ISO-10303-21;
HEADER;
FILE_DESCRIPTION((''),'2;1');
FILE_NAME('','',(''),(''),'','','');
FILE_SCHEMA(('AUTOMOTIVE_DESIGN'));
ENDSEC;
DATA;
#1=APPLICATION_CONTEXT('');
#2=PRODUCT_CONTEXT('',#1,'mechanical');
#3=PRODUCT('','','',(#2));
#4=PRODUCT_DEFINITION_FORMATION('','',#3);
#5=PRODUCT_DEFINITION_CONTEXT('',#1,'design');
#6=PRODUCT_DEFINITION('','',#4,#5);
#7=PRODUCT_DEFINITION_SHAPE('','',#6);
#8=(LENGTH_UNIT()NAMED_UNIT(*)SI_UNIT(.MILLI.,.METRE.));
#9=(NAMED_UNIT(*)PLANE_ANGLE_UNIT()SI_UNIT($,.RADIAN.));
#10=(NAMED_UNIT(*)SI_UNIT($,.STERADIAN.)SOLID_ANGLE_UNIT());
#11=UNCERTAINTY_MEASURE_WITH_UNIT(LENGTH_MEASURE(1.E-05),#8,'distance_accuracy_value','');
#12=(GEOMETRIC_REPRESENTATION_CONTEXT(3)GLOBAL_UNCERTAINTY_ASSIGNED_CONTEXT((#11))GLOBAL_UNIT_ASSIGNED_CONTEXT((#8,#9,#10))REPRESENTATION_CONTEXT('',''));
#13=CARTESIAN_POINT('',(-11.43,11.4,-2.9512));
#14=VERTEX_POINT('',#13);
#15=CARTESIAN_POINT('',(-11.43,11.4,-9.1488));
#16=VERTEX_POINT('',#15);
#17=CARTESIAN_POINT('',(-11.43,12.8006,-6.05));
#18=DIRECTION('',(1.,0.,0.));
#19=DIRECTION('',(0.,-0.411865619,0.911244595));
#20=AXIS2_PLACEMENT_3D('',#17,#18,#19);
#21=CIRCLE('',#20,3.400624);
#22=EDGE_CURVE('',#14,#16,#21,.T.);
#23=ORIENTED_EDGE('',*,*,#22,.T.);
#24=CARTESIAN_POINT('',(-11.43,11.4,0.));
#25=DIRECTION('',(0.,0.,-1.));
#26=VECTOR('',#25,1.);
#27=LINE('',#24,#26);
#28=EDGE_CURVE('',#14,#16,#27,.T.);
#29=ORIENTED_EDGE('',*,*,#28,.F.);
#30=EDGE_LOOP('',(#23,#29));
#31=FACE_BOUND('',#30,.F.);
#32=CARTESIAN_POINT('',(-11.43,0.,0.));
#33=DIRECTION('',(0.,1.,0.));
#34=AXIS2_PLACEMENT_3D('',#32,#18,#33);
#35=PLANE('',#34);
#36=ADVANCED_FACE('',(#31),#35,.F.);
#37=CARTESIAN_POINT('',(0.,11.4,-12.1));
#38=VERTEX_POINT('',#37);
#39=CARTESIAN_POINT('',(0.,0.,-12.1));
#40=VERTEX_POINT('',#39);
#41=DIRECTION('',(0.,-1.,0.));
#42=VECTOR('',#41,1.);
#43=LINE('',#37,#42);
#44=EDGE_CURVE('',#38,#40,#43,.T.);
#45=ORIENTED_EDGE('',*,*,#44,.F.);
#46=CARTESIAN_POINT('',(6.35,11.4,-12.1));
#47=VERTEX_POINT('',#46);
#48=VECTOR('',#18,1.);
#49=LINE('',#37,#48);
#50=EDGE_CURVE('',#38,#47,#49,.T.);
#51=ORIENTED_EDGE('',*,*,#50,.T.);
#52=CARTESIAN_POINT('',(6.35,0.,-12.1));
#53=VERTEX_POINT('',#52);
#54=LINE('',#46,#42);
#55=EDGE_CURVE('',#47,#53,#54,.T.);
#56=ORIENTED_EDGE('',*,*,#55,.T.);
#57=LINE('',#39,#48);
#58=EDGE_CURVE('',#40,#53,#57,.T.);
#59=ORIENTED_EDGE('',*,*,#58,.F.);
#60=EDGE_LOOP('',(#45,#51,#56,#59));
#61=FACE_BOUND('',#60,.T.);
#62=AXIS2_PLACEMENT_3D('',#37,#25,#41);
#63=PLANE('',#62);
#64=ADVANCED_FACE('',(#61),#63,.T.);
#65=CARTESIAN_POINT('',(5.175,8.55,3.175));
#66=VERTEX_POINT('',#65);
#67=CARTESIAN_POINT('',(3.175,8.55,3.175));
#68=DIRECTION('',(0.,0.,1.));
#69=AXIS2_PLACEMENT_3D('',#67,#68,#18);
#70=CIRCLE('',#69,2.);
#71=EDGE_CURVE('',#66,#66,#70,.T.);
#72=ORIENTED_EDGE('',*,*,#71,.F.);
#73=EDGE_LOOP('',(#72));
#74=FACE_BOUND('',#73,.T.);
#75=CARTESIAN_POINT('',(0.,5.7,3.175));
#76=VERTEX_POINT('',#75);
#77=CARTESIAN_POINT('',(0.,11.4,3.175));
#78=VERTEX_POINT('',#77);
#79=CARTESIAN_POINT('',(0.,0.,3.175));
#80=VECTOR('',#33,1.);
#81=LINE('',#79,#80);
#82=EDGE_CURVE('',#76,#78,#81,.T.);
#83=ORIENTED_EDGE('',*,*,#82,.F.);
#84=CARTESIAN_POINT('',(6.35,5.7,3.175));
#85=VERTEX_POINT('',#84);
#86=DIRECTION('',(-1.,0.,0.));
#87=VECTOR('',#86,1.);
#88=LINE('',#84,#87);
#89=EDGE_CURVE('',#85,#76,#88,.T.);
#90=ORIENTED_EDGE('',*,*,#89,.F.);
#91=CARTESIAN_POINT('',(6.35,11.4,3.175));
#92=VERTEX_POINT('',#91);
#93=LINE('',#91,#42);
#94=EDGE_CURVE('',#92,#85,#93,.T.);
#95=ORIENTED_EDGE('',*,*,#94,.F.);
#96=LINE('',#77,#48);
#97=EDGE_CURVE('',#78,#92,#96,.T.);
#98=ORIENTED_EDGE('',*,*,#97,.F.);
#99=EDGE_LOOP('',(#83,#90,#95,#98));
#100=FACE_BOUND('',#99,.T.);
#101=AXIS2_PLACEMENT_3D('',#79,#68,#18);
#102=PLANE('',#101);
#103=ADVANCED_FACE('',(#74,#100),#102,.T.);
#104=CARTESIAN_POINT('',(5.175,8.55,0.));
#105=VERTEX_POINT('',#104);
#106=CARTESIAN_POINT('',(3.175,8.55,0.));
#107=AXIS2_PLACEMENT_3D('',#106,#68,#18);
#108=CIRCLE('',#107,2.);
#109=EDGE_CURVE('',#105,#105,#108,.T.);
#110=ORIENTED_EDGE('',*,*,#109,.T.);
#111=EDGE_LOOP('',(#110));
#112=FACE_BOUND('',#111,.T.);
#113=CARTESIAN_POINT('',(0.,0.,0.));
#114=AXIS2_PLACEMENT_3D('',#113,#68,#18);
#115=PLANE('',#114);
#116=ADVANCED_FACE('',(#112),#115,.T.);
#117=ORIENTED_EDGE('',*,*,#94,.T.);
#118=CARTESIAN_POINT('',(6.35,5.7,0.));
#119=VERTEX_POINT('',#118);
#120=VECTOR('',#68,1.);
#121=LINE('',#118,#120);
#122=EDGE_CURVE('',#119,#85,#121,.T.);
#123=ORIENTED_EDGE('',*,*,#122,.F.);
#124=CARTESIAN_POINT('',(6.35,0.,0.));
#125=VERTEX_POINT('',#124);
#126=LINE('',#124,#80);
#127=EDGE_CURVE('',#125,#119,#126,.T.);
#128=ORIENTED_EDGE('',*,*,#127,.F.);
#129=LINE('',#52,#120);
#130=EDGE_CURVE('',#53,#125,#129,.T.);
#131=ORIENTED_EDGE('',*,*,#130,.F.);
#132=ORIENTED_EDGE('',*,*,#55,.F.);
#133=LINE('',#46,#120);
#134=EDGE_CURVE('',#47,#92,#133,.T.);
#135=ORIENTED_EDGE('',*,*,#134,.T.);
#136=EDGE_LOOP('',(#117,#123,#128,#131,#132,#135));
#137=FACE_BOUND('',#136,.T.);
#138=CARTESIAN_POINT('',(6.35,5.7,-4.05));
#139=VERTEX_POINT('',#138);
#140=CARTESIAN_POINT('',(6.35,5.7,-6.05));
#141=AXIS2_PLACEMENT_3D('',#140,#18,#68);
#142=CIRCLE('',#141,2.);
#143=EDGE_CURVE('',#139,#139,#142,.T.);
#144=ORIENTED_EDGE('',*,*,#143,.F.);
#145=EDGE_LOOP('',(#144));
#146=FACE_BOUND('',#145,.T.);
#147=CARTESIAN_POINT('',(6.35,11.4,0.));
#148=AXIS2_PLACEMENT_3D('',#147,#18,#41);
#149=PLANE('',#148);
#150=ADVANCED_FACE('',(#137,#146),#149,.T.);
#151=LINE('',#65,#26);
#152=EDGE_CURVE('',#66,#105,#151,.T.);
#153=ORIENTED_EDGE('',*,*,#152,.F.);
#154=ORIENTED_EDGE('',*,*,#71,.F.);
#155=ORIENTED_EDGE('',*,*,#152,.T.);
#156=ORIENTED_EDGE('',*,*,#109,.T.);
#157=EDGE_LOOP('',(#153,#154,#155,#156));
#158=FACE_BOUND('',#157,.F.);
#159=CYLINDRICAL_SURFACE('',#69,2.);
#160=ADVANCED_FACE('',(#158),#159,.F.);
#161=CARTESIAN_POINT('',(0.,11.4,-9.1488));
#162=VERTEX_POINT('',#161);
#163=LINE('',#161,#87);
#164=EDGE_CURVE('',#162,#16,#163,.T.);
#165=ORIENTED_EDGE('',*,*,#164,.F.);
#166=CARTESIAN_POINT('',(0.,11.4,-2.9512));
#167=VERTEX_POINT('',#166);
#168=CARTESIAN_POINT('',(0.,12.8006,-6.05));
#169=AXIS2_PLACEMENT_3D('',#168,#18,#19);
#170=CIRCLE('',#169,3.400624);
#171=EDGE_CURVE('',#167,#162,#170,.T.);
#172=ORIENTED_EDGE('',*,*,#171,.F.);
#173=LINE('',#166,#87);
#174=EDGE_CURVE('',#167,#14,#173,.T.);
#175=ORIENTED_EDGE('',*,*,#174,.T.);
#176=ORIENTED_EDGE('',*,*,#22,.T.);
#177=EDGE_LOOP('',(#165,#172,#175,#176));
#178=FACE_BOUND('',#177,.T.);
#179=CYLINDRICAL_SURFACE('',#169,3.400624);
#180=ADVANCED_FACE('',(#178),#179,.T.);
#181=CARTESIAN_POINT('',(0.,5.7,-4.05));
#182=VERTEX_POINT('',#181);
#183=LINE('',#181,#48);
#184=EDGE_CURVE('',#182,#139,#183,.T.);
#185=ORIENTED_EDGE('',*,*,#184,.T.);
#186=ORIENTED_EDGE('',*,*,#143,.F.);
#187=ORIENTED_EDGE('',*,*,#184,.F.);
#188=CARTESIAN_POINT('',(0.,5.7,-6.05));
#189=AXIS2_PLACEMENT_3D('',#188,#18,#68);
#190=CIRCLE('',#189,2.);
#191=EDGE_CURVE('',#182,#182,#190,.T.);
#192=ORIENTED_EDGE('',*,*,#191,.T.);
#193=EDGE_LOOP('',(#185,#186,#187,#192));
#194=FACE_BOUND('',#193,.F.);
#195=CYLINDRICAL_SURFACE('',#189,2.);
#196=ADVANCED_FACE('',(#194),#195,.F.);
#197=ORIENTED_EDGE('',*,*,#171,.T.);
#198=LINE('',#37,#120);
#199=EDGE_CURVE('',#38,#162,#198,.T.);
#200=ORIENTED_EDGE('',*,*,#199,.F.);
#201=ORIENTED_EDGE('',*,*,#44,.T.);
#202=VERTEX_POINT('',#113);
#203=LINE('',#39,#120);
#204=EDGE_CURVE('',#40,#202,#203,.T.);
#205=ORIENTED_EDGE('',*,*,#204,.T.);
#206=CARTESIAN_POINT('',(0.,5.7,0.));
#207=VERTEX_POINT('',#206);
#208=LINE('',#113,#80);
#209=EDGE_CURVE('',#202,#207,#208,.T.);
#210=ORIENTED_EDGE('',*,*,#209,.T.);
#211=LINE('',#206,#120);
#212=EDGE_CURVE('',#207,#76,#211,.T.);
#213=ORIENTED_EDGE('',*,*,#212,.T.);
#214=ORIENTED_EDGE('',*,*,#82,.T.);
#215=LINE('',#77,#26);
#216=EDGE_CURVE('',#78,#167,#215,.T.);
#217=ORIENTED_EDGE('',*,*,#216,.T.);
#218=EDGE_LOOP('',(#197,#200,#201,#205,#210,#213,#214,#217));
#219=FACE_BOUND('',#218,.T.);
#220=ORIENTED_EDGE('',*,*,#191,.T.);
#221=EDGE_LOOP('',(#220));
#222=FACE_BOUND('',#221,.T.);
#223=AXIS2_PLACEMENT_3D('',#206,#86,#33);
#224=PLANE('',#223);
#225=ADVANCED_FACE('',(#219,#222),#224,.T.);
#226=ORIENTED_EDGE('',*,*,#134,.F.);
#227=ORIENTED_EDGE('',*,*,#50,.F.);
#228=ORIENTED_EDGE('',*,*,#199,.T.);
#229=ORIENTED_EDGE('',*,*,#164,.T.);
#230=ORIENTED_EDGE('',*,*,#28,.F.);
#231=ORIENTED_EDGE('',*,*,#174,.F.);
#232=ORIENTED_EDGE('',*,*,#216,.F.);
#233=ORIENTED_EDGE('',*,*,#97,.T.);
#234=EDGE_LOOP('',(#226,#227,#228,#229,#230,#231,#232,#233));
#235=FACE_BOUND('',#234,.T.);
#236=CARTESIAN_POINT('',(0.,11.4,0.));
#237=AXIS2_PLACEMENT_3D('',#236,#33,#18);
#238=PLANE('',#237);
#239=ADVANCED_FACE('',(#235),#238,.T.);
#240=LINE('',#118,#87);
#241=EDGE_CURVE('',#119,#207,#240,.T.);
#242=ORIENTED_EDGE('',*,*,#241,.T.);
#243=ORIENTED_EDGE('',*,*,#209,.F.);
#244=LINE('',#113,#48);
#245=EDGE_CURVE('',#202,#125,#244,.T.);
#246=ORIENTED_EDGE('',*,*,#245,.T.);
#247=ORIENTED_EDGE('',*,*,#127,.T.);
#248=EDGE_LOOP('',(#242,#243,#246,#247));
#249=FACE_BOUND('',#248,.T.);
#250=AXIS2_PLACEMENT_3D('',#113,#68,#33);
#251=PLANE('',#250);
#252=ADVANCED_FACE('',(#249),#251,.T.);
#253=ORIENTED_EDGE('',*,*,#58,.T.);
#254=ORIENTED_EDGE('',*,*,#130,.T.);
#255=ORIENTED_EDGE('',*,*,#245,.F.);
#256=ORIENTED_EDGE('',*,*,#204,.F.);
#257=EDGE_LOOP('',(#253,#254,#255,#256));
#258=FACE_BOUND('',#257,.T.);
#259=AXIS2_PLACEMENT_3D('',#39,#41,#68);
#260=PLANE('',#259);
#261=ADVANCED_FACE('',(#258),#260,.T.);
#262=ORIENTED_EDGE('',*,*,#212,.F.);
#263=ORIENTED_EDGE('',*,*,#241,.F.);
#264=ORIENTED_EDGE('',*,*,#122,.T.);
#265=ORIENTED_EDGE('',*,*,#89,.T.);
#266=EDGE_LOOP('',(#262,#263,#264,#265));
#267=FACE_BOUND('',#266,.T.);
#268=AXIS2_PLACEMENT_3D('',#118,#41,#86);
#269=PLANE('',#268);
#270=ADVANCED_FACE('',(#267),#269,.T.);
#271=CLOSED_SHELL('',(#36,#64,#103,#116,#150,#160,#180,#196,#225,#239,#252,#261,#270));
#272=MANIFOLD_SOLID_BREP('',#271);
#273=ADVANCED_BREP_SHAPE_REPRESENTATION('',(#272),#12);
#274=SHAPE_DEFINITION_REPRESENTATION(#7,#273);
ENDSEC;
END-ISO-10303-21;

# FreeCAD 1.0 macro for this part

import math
import FreeCAD as App
import Part
import Sketcher

V = App.Vector
Q = App.Units.Quantity


def add_polygon(sketch, points):
    """Adds a closed chain of lines whose ends are joined by coincident constraints."""
    first, n = sketch.GeometryCount, len(points)
    for a, b in zip(points, points[1:] + points[:1]):
        sketch.addGeometry(Part.LineSegment(App.Vector(*a, 0), App.Vector(*b, 0)), False)
    for i in range(n):
        sketch.addConstraint(Sketcher.Constraint("Coincident", first + i, 2, first + (i + 1) % n, 1))

doc = App.newDocument("Part")
body = doc.addObject("PartDesign::Body", "Body")

# Sketch on YZ plane
sketch1 = body.newObject("Sketcher::SketchObject", "Sketch")
sketch1.AttachmentSupport = (doc.getObject("YZ_Plane"), [""])
sketch1.MapMode = "FlatFace"
add_polygon(sketch1, [(11.4, 0), (0, 0), (0, -12.1), (11.4, -12.1)])  # lines 0-3
sketch1.addConstraint([
    Sketcher.Constraint("Horizontal", 0),
    Sketcher.Constraint("Vertical", 1),
    Sketcher.Constraint("Horizontal", 2),
    Sketcher.Constraint("Vertical", 3),
    Sketcher.Constraint("Coincident", 0, 2, -1, 1),
    Sketcher.Constraint("DistanceX", 0, 2, 0, 1, 11.4),
    Sketcher.Constraint("DistanceY", 1, 2, 1, 1, 12.1),
])
pad1 = body.newObject("PartDesign::Pad", "Pad")
pad1.Profile = sketch1
pad1.Length = Q("0.25 in")

# Sketch on YZ plane
sketch2 = body.newObject("Sketcher::SketchObject", "Sketch001")
sketch2.AttachmentSupport = (doc.getObject("YZ_Plane"), [""])
sketch2.MapMode = "FlatFace"
sketch2.addGeometry([
    Part.LineSegment(V(11.4, -9.1488, 0), V(11.4, -2.9512, 0)),
    Part.ArcOfCircle(Part.Circle(V(12.8006, -6.05, 0), V(0, 0, 1), 3.400624), math.radians(114.322084), math.radians(245.677916)),
], False)
sketch2.addConstraint([
    Sketcher.Constraint("Coincident", 0, 1, 1, 2),
    Sketcher.Constraint("Coincident", 1, 1, 0, 2),
    Sketcher.Constraint("Vertical", 0),
    Sketcher.Constraint("DistanceY", 0, 1, 0, 2, Q("0.244 in")),
    Sketcher.Constraint("DistanceY", 1, 1, -1, 1, Q("0.1162 in")),
    Sketcher.Constraint("DistanceX", -1, 1, 0, 1, 11.4),
    Sketcher.Constraint("Radius", 1, 3.4006),
])
pad2 = body.newObject("PartDesign::Pad", "Pad001")
pad2.Profile = sketch2
pad2.Length = Q("0.45 in")
pad2.Reversed = True

# Sketch on YZ plane
sketch3 = body.newObject("Sketcher::SketchObject", "Sketch002")
sketch3.AttachmentSupport = (doc.getObject("YZ_Plane"), [""])
sketch3.MapMode = "FlatFace"
sketch3.addGeometry(Part.Circle(V(5.7, -6.05, 0), V(0, 0, 1), 2), False)
sketch3.addConstraint([
    Sketcher.Constraint("Diameter", 0, 4.0),
    Sketcher.Constraint("DistanceX", -1, 1, 0, 3, Q("0.2244 in")),
    Sketcher.Constraint("DistanceY", 0, 3, -1, 1, Q("0.2382 in")),
])
doc.recompute()
hole = body.newObject("PartDesign::Hole", "Hole")
hole.Profile = sketch3
hole.ThreadType = "None"
hole.Diameter = 4
hole.DepthType = "ThroughAll"
hole.Reversed = True

# Sketch on XY plane
sketch4 = body.newObject("Sketcher::SketchObject", "Sketch003")
sketch4.AttachmentSupport = (doc.getObject("XY_Plane"), [""])
sketch4.MapMode = "FlatFace"
add_polygon(sketch4, [(0, 5.7), (6.35, 5.7), (6.35, 11.4), (0, 11.4)])  # lines 0-3
sketch4.addConstraint([
    Sketcher.Constraint("Horizontal", 0),
    Sketcher.Constraint("Vertical", 1),
    Sketcher.Constraint("Horizontal", 2),
    Sketcher.Constraint("Vertical", 3),
    Sketcher.Constraint("PointOnObject", 2, 2, -2),
    Sketcher.Constraint("DistanceY", 1, 1, 1, 2, Q("0.2244 in")),
    Sketcher.Constraint("DistanceX", 0, 1, 0, 2, Q("0.25 in")),
    Sketcher.Constraint("DistanceY", -1, 1, 0, 2, Q("0.2244 in")),
])
pad3 = body.newObject("PartDesign::Pad", "Pad002")
pad3.Profile = sketch4
pad3.Length = Q("0.125 in")

# Sketch on XY plane
sketch5 = body.newObject("Sketcher::SketchObject", "Sketch004")
sketch5.AttachmentSupport = (doc.getObject("XY_Plane"), [""])
sketch5.MapMode = "FlatFace"
sketch5.AttachmentOffset = App.Placement(V(0, 0, 0.125 * 25.4), App.Rotation())
sketch5.addGeometry(Part.Circle(V(3.175, 8.55, 0), V(0, 0, 1), 2), False)
sketch5.addConstraint([
    Sketcher.Constraint("Diameter", 0, 4.0),
    Sketcher.Constraint("DistanceX", -1, 1, 0, 3, Q("0.125 in")),
    Sketcher.Constraint("DistanceY", -1, 1, 0, 3, 8.55),
])
pocket1 = body.newObject("PartDesign::Pocket", "Pocket")
pocket1.Profile = sketch5
pocket1.Length = Q("0.125 in")

doc.recompute()
